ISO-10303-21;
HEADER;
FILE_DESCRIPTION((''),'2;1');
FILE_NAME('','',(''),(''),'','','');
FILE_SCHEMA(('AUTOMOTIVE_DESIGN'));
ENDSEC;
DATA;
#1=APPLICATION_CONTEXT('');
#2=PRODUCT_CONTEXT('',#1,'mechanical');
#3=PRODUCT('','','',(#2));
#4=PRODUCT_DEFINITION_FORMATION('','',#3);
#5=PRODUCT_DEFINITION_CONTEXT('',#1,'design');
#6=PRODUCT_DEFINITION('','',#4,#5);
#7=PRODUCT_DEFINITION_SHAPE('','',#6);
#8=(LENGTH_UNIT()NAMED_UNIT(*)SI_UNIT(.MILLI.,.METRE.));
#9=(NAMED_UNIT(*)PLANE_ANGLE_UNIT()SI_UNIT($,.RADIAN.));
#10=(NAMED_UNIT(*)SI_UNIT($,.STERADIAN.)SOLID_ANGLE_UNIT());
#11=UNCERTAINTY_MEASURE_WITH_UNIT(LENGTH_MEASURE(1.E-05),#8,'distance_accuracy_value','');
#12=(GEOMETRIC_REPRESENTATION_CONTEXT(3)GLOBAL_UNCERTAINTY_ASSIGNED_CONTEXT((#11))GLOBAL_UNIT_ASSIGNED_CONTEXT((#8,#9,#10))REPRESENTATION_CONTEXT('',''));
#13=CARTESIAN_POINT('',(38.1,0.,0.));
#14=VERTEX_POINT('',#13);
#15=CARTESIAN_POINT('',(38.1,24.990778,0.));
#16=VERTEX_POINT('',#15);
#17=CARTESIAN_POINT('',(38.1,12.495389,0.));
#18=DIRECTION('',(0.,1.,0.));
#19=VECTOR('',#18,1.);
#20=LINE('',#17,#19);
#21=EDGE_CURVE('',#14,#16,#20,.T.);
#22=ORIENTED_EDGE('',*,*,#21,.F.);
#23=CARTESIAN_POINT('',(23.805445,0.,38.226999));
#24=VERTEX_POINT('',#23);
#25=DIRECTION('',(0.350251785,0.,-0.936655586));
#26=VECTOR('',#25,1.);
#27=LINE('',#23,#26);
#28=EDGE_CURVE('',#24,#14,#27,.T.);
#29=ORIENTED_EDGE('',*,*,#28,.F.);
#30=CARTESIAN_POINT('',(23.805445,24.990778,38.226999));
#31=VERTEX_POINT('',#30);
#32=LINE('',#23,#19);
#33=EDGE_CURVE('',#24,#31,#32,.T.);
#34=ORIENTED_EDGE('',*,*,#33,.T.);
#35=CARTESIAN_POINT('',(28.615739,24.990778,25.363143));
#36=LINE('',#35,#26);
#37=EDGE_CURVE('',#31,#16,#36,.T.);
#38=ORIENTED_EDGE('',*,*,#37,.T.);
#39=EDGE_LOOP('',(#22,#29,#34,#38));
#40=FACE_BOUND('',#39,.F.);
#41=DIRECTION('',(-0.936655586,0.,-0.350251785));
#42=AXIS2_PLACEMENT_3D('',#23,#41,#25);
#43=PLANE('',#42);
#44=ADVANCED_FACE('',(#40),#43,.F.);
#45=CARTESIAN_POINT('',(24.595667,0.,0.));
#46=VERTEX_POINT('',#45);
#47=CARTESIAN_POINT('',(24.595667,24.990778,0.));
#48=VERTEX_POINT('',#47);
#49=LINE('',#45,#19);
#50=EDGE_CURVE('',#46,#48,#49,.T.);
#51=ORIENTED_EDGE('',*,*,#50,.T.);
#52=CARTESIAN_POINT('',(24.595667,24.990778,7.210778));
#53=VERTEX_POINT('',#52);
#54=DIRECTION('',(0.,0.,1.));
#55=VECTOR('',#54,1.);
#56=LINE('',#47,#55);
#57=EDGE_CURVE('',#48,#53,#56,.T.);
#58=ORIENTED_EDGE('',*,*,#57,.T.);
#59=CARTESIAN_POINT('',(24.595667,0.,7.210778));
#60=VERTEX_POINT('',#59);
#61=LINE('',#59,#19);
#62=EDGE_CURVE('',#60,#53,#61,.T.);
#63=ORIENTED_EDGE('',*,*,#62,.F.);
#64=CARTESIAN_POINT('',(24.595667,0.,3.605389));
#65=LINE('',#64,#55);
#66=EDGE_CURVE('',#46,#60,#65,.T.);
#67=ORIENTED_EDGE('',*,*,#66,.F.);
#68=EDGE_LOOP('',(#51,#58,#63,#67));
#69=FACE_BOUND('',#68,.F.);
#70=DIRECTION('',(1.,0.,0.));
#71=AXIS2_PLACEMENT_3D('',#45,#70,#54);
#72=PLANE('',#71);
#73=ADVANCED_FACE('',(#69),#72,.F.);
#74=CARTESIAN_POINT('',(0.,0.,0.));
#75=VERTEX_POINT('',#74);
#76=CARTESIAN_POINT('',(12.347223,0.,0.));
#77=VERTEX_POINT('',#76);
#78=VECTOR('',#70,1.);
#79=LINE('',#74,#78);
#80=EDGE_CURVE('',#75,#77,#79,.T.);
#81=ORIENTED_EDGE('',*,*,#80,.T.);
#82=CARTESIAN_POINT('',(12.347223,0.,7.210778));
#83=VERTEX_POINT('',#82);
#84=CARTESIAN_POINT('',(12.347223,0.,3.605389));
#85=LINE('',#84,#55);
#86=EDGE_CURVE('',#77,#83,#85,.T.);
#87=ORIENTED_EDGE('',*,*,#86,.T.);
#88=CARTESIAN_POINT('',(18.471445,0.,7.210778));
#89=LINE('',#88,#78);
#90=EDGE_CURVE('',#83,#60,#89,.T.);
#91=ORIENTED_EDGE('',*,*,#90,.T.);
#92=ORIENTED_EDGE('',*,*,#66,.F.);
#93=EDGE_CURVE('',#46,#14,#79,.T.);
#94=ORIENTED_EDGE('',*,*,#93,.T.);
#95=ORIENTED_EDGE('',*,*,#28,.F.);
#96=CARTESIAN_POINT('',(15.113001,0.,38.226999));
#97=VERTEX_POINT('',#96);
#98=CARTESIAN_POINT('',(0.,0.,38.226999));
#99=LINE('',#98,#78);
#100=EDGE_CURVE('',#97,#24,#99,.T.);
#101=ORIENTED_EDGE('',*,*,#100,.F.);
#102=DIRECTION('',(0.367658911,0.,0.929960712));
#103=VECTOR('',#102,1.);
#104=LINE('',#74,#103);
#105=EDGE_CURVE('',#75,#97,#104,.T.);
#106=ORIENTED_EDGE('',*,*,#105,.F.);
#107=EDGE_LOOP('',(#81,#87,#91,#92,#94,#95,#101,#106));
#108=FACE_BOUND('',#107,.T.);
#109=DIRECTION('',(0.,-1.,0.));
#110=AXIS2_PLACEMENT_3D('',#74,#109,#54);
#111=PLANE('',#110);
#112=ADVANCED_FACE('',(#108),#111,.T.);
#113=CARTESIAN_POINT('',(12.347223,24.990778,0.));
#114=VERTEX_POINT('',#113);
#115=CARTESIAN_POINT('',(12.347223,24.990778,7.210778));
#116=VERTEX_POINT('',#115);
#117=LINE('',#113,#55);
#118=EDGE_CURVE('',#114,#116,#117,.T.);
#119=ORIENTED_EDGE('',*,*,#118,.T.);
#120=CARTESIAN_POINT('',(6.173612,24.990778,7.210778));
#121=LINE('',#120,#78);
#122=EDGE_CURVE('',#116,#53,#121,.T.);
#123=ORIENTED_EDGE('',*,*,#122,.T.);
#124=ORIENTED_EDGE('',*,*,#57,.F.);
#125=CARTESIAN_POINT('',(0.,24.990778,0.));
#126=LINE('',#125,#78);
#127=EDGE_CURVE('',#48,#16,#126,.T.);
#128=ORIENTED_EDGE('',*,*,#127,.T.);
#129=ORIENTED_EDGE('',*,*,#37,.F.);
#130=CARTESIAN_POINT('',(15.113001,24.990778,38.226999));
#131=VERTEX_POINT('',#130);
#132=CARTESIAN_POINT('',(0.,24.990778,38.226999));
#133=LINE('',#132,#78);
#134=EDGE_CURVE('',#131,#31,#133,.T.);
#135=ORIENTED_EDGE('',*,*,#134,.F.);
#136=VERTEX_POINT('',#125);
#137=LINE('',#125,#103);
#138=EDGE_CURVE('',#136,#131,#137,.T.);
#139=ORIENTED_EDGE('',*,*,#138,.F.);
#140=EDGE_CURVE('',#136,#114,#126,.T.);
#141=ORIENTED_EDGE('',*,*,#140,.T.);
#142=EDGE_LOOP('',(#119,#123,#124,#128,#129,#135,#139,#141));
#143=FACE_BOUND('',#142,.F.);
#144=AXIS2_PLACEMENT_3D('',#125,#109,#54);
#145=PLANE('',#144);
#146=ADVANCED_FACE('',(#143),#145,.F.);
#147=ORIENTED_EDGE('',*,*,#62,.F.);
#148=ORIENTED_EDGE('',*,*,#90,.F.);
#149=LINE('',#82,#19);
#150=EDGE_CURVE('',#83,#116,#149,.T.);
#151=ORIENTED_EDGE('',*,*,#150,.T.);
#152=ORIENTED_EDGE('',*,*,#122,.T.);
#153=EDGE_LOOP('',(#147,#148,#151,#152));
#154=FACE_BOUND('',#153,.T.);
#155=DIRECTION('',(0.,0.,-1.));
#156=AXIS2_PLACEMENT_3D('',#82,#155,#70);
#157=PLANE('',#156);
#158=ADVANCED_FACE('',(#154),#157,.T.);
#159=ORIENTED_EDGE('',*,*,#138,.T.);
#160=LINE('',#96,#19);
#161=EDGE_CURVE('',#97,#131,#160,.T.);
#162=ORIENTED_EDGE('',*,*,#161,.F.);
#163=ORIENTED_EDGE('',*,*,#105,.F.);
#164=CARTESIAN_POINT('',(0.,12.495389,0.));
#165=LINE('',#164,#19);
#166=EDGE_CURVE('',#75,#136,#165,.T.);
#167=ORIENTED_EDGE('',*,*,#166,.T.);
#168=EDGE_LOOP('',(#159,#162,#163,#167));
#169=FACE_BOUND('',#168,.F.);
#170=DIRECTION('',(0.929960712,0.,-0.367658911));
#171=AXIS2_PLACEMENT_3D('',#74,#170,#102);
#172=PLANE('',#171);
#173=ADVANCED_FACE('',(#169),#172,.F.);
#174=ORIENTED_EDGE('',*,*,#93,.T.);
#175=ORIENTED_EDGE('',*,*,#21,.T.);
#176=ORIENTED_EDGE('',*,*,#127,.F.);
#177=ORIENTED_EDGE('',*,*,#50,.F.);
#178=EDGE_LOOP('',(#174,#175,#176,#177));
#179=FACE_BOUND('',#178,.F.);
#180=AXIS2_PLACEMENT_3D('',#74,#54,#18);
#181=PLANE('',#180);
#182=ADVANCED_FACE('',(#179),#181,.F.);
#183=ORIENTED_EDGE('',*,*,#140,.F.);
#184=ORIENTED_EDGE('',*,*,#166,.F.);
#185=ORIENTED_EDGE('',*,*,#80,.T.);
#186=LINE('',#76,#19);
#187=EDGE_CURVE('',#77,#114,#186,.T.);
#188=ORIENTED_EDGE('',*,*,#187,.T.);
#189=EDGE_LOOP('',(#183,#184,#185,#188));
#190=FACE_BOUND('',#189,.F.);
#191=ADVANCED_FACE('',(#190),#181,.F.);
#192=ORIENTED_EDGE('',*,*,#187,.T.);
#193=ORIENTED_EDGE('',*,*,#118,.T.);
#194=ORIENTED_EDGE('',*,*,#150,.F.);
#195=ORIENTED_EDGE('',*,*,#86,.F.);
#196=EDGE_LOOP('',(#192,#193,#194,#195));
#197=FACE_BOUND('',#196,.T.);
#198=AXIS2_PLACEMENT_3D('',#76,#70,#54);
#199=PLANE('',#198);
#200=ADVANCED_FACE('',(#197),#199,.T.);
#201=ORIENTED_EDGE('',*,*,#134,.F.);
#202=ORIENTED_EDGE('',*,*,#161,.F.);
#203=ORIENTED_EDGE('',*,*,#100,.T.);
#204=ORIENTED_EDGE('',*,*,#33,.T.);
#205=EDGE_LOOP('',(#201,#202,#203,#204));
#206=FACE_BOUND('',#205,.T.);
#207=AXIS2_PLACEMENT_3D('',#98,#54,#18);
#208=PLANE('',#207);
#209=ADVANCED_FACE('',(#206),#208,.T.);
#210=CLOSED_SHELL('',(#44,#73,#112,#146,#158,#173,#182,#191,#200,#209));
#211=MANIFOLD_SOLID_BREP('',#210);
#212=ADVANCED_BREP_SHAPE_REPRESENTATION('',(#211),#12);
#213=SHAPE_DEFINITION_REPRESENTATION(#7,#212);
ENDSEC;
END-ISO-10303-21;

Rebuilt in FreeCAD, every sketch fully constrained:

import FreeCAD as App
import Part
import Sketcher
from FreeCAD import Vector
Q = App.Units.Quantity

doc = App.newDocument("Part")
body = doc.addObject("PartDesign::Body", "Body")

# Sketch on YZ plane
sketch1 = body.newObject("Sketcher::SketchObject", "Sketch")
sketch1.AttachmentSupport = (doc.getObject("YZ_Plane"), [""])
sketch1.MapMode = "FlatFace"
sketch1.addGeometry(Part.LineSegment(Vector(0, 38.226999, 0), Vector(0, 0, 0)), False)
sketch1.addGeometry(Part.LineSegment(Vector(0, 0, 0), Vector(24.990778, 0, 0)), False)
sketch1.addGeometry(Part.LineSegment(Vector(24.990778, 0, 0), Vector(24.990778, 38.226999, 0)), False)
sketch1.addGeometry(Part.LineSegment(Vector(24.990778, 38.226999, 0), Vector(0, 38.226999, 0)), False)
sketch1.addConstraint(Sketcher.Constraint("Coincident", 0, 2, 1, 1))
sketch1.addConstraint(Sketcher.Constraint("Coincident", 1, 2, 2, 1))
sketch1.addConstraint(Sketcher.Constraint("Coincident", 2, 2, 3, 1))
sketch1.addConstraint(Sketcher.Constraint("Coincident", 3, 2, 0, 1))
sketch1.addConstraint(Sketcher.Constraint("Vertical", 0))
sketch1.addConstraint(Sketcher.Constraint("Horizontal", 1))
sketch1.addConstraint(Sketcher.Constraint("Vertical", 2))
sketch1.addConstraint(Sketcher.Constraint("Horizontal", 3))
sketch1.addConstraint(Sketcher.Constraint("Coincident", 0, 2, -1, 1))
sketch1.addConstraint(Sketcher.Constraint("DistanceY", 0, 2, 0, 1, Q("1.505 in")))
sketch1.addConstraint(Sketcher.Constraint("DistanceX", 1, 1, 1, 2, 24.990778))
pad1 = body.newObject("PartDesign::Pad", "Pad")
pad1.Profile = sketch1
pad1.Length = Q("1.5 in")

# Sketch on XZ plane
sketch2 = body.newObject("Sketcher::SketchObject", "Sketch001")
sketch2.AttachmentSupport = (doc.getObject("XZ_Plane"), [""])
sketch2.MapMode = "FlatFace"
sketch2.addGeometry(Part.LineSegment(Vector(12.347223, 7.210778, 0), Vector(12.347223, 0, 0)), False)
sketch2.addGeometry(Part.LineSegment(Vector(12.347223, 0, 0), Vector(24.595667, 0, 0)), False)
sketch2.addGeometry(Part.LineSegment(Vector(24.595667, 0, 0), Vector(24.595667, 7.210778, 0)), False)
sketch2.addGeometry(Part.LineSegment(Vector(24.595667, 7.210778, 0), Vector(12.347223, 7.210778, 0)), False)
sketch2.addConstraint(Sketcher.Constraint("Coincident", 0, 2, 1, 1))
sketch2.addConstraint(Sketcher.Constraint("Coincident", 1, 2, 2, 1))
sketch2.addConstraint(Sketcher.Constraint("Coincident", 2, 2, 3, 1))
sketch2.addConstraint(Sketcher.Constraint("Coincident", 3, 2, 0, 1))
sketch2.addConstraint(Sketcher.Constraint("Vertical", 0))
sketch2.addConstraint(Sketcher.Constraint("Horizontal", 1))
sketch2.addConstraint(Sketcher.Constraint("Vertical", 2))
sketch2.addConstraint(Sketcher.Constraint("Horizontal", 3))
sketch2.addConstraint(Sketcher.Constraint("PointOnObject", 0, 2, -1))
sketch2.addConstraint(Sketcher.Constraint("DistanceY", 0, 2, 0, 1, 7.210778))
sketch2.addConstraint(Sketcher.Constraint("DistanceX", 1, 1, 1, 2, 12.248443))
sketch2.addConstraint(Sketcher.Constraint("DistanceX", -1, 1, 0, 2, 12.347223))
pocket1 = body.newObject("PartDesign::Pocket", "Pocket")
pocket1.Profile = sketch2
pocket1.Type = "ThroughAll"

# Sketch on XZ plane
sketch3 = body.newObject("Sketcher::SketchObject", "Sketch002")
sketch3.AttachmentSupport = (doc.getObject("XZ_Plane"), [""])
sketch3.MapMode = "FlatFace"
sketch3.addGeometry(Part.LineSegment(Vector(0, 0, 0), Vector(15.113001, 38.226999, 0)), False)
sketch3.addGeometry(Part.LineSegment(Vector(15.113001, 38.226999, 0), Vector(0, 38.226999, 0)), False)
sketch3.addGeometry(Part.LineSegment(Vector(0, 38.226999, 0), Vector(0, 0, 0)), False)
sketch3.addGeometry(Part.LineSegment(Vector(38.1, 38.226999, 0), Vector(23.805445, 38.226999, 0)), False)
sketch3.addGeometry(Part.LineSegment(Vector(23.805445, 38.226999, 0), Vector(38.1, 0, 0)), False)
sketch3.addGeometry(Part.LineSegment(Vector(38.1, 0, 0), Vector(38.1, 38.226999, 0)), False)
sketch3.addConstraint(Sketcher.Constraint("Coincident", 0, 2, 1, 1))
sketch3.addConstraint(Sketcher.Constraint("Coincident", 1, 2, 2, 1))
sketch3.addConstraint(Sketcher.Constraint("Coincident", 2, 2, 0, 1))
sketch3.addConstraint(Sketcher.Constraint("Coincident", 3, 2, 4, 1))
sketch3.addConstraint(Sketcher.Constraint("Coincident", 4, 2, 5, 1))
sketch3.addConstraint(Sketcher.Constraint("Coincident", 5, 2, 3, 1))
sketch3.addConstraint(Sketcher.Constraint("Horizontal", 1))
sketch3.addConstraint(Sketcher.Constraint("Vertical", 2))
sketch3.addConstraint(Sketcher.Constraint("Horizontal", 3))
sketch3.addConstraint(Sketcher.Constraint("Vertical", 5))
sketch3.addConstraint(Sketcher.Constraint("Coincident", 2, 2, -1, 1))
sketch3.addConstraint(Sketcher.Constraint("PointOnObject", 4, 2, -1))
sketch3.addConstraint(Sketcher.Constraint("Horizontal", 1, 2, 3, 2))
sketch3.addConstraint(Sketcher.Constraint("DistanceX", -1, 1, 4, 2, Q("1.5 in")))
sketch3.addConstraint(Sketcher.Constraint("DistanceX", 1, 2, 1, 1, Q("0.595 in")))
sketch3.addConstraint(Sketcher.Constraint("DistanceY", 2, 2, 2, 1, Q("1.505 in")))
sketch3.addConstraint(Sketcher.Constraint("DistanceX", 3, 2, 3, 1, 14.294555))
pocket2 = body.newObject("PartDesign::Pocket", "Pocket001")
pocket2.Profile = sketch3
pocket2.Type = "ThroughAll"

doc.recompute()
